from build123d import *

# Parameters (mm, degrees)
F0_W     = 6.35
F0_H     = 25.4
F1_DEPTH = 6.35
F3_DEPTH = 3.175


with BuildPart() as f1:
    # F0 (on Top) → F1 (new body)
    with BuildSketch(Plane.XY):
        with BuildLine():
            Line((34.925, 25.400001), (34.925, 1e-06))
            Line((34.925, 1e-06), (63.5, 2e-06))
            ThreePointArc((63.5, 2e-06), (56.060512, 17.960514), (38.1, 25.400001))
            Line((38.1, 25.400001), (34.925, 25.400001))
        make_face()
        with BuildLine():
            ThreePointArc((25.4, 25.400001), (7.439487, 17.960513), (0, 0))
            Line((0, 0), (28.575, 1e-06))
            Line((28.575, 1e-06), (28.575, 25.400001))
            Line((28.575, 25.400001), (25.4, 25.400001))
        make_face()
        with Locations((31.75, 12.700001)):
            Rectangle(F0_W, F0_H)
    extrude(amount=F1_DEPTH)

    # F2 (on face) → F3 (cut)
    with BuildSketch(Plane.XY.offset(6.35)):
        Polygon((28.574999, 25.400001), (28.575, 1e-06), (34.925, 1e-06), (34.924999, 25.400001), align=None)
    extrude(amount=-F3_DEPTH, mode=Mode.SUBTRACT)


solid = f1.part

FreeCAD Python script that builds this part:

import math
import FreeCAD as App
import Part
import Sketcher

V = App.Vector
Q = App.Units.Quantity


def add_polygon(sketch, points):
    """Adds a closed chain of lines whose ends are joined by coincident constraints."""
    first, n = sketch.GeometryCount, len(points)
    for a, b in zip(points, points[1:] + points[:1]):
        sketch.addGeometry(Part.LineSegment(App.Vector(*a, 0), App.Vector(*b, 0)), False)
    for i in range(n):
        sketch.addConstraint(Sketcher.Constraint("Coincident", first + i, 2, first + (i + 1) % n, 1))

doc = App.newDocument("Part")
body = doc.addObject("PartDesign::Body", "Body")

# Sketch on XY plane
sketch1 = doc.addObject("Sketcher::SketchObject", "Sketch")
body.addObject(sketch1)
sketch1.AttachmentSupport = (doc.XY_Plane, [""])
sketch1.MapMode = "FlatFace"
sketch1.addGeometry([
    Part.LineSegment(V(34.925, 0.000001, 0), V(63.5, 0.000002, 0)),  # 0
    Part.ArcOfCircle(Part.Circle(V(38.100001, 0.000002, 0), V(0, 0, 1), 25.399999), math.radians(0), math.radians(90.000002)),  # 1
    Part.LineSegment(V(38.1, 25.400001, 0), V(25.4, 25.400001, 0)),  # 2
    Part.ArcOfCircle(Part.Circle(V(25.399999, 0.000002, 0), V(0, 0, 1), 25.399999), math.radians(89.999998), math.radians(180.000004)),  # 3
    Part.LineSegment(V(0, 0, 0), V(28.575, 0.000001, 0)),  # 4
    Part.LineSegment(V(28.575, 0.000001, 0), V(34.925, 0.000001, 0)),  # 5
], False)
sketch1.addConstraint([
    Sketcher.Constraint("Coincident", 0, 2, 1, 1),
    Sketcher.Constraint("Tangent", 1, 2, 2, 1),
    Sketcher.Constraint("Tangent", 2, 2, 3, 1),
    Sketcher.Constraint("Coincident", 3, 2, 4, 1),
    Sketcher.Constraint("Coincident", 4, 2, 5, 1),
    Sketcher.Constraint("Coincident", 5, 2, 0, 1),
    Sketcher.Constraint("Horizontal", 0),
    Sketcher.Constraint("Horizontal", 2),
    Sketcher.Constraint("Horizontal", 4),
    Sketcher.Constraint("Horizontal", 5),
    Sketcher.Constraint("Coincident", 3, 2, -1, 1),
    Sketcher.Constraint("Equal", 1, 3),
    Sketcher.Constraint("PointOnObject", 1, 3, -1),
    Sketcher.Constraint("Equal", 0, 4),
    Sketcher.Constraint("Radius", 1, Q("1 in")),
    Sketcher.Constraint("DistanceX", 2, 2, 2, 1, Q("0.5 in")),
    Sketcher.Constraint("DistanceX", 5, 1, 5, 2, Q("0.25 in")),
])
pad1 = doc.addObject("PartDesign::Pad", "Pad")
body.addObject(pad1)
pad1.Profile = sketch1
pad1.Length = Q("0.25 in")

# Sketch on XY plane
sketch2 = doc.addObject("Sketcher::SketchObject", "Sketch001")
body.addObject(sketch2)
sketch2.AttachmentSupport = (doc.XY_Plane, [""])
sketch2.MapMode = "FlatFace"
sketch2.AttachmentOffset = App.Placement(V(0, 0, 0.25 * 25.4), App.Rotation())
add_polygon(sketch2, [(28.574999, 25.400001), (28.575, 0.000001), (34.925, 0.000001), (34.924999, 25.400001)])  # lines 0-3
sketch2.addConstraint([
    Sketcher.Constraint("Vertical", 0),
    Sketcher.Constraint("Horizontal", 1),
    Sketcher.Constraint("Vertical", 2),
    Sketcher.Constraint("Horizontal", 3),
    Sketcher.Constraint("PointOnObject", 0, 2, -1),
    Sketcher.Constraint("DistanceY", 0, 2, 0, 1, Q("1 in")),
    Sketcher.Constraint("DistanceX", 1, 1, 1, 2, Q("0.25 in")),
    Sketcher.Constraint("DistanceX", -1, 1, 0, 2, Q("1.125 in")),
])
pocket1 = doc.addObject("PartDesign::Pocket", "Pocket")
body.addObject(pocket1)
pocket1.Profile = sketch2
pocket1.Length = Q("0.125 in")

doc.recompute()
